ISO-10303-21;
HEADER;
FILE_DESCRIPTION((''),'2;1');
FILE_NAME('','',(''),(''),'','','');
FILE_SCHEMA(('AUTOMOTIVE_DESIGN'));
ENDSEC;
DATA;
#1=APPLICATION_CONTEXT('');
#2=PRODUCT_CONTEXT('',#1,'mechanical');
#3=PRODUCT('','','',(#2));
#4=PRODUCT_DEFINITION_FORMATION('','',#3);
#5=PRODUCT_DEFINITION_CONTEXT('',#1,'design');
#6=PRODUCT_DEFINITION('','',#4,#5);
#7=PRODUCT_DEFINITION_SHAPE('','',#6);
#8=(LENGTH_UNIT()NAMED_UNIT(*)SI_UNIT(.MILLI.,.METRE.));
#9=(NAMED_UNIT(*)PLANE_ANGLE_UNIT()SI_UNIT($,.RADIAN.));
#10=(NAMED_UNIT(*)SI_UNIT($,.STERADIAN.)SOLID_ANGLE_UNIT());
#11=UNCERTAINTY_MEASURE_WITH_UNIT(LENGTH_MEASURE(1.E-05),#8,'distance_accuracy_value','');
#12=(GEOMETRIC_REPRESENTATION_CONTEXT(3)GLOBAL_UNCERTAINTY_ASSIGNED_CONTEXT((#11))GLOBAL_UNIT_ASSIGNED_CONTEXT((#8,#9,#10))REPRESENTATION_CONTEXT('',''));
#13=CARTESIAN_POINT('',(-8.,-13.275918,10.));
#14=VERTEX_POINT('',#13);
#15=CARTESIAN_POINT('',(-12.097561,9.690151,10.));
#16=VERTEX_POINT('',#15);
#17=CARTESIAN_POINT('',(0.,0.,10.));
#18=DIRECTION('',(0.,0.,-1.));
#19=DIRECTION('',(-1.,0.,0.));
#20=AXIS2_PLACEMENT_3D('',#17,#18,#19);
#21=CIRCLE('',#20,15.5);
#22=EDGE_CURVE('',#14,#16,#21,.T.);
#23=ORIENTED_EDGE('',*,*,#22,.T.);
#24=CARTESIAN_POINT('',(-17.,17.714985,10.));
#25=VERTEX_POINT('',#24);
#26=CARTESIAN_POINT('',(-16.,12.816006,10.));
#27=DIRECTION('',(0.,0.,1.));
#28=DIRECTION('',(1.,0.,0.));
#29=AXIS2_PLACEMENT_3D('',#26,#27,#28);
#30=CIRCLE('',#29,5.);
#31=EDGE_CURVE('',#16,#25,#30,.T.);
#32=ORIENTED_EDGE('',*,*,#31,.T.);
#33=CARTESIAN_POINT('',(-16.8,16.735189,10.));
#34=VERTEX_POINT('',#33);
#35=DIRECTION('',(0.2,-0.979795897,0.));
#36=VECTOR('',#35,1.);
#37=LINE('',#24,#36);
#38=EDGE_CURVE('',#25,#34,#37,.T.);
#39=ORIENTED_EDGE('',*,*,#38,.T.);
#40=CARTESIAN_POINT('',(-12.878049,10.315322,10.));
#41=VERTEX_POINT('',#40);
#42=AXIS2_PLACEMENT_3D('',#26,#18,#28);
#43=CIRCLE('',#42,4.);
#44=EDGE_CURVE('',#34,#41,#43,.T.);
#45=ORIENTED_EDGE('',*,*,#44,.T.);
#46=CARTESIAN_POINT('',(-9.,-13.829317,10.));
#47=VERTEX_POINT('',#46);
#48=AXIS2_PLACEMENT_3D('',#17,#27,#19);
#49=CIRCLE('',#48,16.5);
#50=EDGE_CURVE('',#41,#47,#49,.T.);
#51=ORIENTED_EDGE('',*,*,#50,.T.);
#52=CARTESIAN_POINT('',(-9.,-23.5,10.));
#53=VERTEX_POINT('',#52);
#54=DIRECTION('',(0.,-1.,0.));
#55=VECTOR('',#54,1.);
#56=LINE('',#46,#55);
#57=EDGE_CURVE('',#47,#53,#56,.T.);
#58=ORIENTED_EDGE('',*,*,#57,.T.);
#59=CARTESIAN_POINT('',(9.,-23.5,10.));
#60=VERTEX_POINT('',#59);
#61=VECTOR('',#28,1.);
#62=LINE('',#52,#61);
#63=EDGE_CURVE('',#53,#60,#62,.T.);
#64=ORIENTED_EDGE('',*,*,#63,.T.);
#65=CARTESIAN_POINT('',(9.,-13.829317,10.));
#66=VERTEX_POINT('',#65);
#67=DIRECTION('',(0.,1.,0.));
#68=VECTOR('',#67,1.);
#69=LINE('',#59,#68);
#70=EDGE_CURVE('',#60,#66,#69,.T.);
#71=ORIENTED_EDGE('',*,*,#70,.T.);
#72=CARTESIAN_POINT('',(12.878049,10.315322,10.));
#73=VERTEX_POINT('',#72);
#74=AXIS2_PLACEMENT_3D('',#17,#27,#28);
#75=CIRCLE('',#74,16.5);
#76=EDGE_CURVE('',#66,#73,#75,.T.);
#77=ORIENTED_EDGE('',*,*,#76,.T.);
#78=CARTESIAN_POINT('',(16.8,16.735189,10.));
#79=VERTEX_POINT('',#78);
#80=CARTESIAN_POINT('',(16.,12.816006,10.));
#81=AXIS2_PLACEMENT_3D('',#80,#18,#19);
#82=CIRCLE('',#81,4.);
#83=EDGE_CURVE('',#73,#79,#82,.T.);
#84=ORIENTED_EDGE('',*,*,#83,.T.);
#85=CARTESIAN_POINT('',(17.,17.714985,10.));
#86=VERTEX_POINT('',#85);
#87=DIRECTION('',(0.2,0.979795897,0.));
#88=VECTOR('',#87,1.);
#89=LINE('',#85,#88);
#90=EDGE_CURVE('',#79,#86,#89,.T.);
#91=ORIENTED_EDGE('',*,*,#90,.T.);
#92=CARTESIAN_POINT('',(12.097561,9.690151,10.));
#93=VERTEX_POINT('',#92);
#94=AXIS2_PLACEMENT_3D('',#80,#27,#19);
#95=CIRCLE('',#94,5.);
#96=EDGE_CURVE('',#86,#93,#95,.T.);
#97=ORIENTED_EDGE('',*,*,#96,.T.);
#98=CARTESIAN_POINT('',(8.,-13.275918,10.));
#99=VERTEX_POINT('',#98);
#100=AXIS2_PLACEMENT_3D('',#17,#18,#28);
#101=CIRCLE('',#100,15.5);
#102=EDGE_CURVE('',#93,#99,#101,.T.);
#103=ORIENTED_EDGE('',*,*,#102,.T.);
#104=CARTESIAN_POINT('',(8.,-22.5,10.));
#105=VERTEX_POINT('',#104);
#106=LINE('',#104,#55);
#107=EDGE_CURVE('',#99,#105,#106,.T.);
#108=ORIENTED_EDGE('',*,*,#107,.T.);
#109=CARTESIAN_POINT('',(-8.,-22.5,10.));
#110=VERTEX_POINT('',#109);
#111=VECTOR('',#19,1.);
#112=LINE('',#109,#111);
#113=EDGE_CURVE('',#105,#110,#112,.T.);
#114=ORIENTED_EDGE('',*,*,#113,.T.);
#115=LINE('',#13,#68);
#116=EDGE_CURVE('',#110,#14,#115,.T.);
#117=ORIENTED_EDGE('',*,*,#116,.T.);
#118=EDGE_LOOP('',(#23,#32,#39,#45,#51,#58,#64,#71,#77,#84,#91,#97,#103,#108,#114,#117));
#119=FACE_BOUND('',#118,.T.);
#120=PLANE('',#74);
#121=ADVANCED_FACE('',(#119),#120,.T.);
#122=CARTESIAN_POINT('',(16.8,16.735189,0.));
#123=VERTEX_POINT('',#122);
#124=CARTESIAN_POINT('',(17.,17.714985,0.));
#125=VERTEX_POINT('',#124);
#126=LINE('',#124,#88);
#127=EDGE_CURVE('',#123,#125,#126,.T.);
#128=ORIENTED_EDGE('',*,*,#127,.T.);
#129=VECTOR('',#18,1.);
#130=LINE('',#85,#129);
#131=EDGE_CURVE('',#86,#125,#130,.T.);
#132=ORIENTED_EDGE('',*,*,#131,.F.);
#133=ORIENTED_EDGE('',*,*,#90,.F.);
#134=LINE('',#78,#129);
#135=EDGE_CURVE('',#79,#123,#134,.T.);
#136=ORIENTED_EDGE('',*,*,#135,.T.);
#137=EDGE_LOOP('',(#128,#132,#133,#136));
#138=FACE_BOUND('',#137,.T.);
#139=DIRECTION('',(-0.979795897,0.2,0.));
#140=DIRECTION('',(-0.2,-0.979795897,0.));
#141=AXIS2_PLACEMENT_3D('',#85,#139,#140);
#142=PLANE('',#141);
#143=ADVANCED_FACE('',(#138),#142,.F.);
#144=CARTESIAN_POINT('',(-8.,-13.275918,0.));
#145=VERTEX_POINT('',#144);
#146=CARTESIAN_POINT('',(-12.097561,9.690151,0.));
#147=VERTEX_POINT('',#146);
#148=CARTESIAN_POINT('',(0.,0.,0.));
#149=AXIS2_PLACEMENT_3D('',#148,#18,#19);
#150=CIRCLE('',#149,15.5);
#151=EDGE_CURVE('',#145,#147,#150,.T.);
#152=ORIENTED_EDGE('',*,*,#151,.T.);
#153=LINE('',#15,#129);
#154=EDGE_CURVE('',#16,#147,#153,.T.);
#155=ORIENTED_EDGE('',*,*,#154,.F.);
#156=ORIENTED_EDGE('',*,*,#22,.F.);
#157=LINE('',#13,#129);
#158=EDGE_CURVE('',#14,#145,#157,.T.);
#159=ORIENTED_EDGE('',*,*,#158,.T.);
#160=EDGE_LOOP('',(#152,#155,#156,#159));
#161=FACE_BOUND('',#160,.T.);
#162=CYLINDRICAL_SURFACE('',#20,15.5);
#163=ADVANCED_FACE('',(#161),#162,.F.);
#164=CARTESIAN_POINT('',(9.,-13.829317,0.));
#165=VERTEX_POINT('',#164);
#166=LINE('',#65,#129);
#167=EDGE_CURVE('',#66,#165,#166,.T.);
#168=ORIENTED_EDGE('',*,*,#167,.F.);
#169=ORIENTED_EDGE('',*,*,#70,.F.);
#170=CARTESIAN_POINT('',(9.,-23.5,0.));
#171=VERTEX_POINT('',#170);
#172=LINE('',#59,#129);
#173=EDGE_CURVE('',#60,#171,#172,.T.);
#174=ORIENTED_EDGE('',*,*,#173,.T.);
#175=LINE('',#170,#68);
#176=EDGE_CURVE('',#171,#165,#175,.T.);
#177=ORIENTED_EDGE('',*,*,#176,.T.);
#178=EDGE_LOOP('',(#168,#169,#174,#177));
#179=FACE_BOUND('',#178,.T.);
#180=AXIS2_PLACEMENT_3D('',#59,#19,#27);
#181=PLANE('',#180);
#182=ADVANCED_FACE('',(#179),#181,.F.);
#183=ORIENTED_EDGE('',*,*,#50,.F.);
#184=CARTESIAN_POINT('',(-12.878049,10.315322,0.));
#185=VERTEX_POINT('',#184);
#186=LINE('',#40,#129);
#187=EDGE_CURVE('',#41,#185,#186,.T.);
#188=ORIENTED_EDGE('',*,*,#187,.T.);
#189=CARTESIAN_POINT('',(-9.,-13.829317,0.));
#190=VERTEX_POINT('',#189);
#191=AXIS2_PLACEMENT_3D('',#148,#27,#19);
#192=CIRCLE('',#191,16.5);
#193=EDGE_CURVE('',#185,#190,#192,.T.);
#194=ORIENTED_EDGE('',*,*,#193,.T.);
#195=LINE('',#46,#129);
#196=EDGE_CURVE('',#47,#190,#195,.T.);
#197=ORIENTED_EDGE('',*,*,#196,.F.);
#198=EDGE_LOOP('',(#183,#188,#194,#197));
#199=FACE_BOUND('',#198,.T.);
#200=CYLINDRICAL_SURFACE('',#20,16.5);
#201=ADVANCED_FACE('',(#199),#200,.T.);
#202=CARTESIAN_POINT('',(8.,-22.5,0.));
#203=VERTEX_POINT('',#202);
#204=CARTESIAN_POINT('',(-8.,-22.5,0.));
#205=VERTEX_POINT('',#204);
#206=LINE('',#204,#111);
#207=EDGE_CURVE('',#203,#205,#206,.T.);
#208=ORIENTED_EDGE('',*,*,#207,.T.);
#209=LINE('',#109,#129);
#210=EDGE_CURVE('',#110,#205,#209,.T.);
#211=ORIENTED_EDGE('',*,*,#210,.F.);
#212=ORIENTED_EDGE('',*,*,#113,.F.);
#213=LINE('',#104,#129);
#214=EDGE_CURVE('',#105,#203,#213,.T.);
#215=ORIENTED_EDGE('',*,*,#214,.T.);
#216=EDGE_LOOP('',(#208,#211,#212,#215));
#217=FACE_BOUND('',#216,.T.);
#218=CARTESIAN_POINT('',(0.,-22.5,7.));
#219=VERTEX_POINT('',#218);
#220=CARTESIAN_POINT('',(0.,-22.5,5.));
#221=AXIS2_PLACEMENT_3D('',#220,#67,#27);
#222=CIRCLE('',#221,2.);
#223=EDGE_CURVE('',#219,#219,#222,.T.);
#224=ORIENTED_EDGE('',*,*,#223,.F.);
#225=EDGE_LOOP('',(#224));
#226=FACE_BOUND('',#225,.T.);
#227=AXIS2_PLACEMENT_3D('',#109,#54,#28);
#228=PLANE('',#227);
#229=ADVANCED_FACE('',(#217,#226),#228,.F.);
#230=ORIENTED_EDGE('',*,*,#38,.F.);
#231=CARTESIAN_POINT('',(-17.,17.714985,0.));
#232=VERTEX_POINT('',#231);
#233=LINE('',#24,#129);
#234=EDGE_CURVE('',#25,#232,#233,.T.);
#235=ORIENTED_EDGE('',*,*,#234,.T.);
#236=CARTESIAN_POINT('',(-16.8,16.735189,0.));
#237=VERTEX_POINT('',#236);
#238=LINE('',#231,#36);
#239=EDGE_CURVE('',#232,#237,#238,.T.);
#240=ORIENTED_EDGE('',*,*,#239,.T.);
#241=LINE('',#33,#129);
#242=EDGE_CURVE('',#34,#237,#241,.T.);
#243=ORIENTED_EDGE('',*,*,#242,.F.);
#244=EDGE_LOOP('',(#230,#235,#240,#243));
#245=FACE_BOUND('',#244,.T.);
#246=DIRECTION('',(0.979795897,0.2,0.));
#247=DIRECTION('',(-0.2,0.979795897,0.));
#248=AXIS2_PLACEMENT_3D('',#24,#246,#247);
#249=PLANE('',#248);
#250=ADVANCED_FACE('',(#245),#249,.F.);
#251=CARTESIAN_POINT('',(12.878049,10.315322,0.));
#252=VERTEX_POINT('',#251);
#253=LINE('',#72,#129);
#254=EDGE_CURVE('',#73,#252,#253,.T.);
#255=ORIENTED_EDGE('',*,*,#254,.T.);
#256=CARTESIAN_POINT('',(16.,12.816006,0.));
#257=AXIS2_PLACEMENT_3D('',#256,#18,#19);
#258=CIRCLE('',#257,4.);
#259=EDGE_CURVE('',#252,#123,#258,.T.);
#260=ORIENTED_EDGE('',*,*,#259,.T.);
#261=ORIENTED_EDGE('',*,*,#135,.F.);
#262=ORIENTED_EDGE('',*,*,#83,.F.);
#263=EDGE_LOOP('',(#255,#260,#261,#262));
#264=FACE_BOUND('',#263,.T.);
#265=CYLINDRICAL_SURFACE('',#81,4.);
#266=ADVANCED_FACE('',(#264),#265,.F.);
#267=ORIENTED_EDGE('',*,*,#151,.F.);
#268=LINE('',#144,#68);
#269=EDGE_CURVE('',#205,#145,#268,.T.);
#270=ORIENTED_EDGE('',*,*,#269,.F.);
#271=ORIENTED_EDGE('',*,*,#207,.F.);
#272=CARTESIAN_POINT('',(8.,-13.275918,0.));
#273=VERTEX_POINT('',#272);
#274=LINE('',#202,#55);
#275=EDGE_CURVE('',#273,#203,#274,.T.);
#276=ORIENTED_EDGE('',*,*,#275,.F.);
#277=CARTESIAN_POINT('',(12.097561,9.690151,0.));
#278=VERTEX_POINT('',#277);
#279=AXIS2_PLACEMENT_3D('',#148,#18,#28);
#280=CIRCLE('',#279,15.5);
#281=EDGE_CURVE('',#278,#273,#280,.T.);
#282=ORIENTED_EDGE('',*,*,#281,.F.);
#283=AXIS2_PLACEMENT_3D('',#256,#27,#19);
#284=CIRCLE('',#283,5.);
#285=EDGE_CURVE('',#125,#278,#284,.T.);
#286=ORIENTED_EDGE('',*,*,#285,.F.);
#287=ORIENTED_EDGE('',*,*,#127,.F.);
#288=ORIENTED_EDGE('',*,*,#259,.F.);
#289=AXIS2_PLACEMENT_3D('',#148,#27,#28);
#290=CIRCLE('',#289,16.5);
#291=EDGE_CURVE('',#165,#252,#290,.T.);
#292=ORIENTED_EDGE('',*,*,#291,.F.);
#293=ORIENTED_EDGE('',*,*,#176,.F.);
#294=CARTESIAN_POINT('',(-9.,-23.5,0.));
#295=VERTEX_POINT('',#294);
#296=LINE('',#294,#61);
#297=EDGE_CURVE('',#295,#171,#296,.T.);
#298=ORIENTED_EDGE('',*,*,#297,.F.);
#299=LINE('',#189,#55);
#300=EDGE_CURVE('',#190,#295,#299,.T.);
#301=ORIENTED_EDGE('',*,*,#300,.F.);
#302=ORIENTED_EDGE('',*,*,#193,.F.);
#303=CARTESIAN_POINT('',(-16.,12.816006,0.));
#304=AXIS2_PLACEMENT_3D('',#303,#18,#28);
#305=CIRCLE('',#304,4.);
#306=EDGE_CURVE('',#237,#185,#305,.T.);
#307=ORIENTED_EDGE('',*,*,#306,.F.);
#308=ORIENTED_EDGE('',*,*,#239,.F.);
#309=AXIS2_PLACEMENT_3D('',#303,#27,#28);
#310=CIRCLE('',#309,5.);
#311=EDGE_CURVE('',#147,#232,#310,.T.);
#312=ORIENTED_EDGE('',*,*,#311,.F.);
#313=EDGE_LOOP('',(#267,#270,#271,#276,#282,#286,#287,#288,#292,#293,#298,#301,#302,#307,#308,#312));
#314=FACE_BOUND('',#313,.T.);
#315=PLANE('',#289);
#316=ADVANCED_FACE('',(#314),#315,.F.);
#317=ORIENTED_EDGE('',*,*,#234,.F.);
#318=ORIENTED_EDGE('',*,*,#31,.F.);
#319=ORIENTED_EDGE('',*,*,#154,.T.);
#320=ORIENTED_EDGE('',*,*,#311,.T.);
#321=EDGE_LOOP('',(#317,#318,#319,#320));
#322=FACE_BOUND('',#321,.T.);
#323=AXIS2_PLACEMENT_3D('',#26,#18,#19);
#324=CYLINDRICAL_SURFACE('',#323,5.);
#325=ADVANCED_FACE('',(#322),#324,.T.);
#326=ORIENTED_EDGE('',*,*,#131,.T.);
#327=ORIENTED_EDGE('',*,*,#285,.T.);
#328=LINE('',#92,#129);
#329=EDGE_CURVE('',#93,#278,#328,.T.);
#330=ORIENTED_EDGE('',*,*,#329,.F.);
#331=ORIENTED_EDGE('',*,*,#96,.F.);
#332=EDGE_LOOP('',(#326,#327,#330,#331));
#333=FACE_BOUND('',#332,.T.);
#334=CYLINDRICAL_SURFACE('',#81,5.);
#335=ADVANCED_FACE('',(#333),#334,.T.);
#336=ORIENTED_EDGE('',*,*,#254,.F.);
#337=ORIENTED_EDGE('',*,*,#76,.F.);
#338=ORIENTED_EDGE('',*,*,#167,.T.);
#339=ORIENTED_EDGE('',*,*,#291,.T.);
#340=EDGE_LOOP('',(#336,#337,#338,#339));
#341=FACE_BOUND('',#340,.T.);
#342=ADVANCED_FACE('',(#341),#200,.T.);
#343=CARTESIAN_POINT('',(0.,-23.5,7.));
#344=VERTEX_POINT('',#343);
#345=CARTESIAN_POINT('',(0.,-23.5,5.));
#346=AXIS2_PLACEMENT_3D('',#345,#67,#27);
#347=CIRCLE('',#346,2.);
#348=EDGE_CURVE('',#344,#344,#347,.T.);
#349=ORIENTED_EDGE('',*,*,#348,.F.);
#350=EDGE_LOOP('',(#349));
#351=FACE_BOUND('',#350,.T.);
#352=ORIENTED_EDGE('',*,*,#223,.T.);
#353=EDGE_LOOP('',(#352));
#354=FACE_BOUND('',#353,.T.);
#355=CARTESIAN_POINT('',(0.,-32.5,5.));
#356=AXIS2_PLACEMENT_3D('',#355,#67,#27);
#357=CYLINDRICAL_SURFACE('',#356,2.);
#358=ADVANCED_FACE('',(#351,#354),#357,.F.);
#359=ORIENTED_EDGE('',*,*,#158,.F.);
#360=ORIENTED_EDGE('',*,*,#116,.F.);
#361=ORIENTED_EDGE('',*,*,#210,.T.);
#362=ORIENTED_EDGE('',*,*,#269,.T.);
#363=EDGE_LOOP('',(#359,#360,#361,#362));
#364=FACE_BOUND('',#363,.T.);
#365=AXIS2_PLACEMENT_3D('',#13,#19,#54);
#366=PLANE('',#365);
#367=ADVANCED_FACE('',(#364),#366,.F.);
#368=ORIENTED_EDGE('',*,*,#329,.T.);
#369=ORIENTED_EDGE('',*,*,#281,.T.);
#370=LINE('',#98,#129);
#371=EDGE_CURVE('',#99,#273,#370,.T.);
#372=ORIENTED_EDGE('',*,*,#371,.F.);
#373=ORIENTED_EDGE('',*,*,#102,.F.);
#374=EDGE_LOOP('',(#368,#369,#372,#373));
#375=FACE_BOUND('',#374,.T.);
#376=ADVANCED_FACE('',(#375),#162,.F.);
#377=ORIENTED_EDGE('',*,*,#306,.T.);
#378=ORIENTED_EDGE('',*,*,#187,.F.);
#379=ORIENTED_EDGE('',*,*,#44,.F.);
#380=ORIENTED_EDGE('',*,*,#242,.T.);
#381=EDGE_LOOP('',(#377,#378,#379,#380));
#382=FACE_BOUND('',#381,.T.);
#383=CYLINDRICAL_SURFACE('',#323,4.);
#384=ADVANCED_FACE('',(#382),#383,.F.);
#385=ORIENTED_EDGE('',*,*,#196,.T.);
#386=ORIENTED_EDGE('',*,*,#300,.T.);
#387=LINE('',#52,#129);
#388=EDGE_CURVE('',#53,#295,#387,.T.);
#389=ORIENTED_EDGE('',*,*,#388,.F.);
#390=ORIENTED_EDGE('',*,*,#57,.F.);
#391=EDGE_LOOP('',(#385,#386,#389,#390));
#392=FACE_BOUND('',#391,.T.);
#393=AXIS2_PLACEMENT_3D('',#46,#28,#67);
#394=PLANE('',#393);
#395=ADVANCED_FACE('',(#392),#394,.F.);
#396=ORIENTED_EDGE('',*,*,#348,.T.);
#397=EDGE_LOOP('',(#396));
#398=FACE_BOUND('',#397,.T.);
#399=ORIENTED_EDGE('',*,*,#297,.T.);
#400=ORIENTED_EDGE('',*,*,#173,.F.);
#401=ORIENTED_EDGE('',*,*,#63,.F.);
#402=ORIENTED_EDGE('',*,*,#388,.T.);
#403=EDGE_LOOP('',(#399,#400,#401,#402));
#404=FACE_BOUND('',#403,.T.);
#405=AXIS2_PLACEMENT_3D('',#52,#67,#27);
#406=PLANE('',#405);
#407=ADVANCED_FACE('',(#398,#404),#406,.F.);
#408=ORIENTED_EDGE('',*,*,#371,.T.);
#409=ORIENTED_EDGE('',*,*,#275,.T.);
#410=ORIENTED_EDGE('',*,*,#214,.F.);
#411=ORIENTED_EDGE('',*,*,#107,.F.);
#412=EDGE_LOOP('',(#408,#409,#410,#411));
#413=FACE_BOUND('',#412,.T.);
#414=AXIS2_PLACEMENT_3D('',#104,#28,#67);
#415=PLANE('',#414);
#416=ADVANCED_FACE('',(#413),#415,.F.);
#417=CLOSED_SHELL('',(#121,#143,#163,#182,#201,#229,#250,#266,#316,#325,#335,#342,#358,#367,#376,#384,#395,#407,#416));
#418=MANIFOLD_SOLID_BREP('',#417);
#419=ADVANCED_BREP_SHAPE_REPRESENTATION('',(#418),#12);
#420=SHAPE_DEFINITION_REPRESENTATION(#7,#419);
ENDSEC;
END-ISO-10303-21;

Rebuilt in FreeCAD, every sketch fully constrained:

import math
import FreeCAD as App
import Part
import Sketcher

V = App.Vector

doc = App.newDocument("Part")
body = doc.addObject("PartDesign::Body", "Body")

sketch1 = doc.addObject("Sketcher::SketchObject", "Sketch")
body.addObject(sketch1)
sketch1.AttachmentSupport = (doc.XY_Plane, [""])
sketch1.MapMode = "FlatFace"
sketch1.addGeometry(Part.LineSegment(V(8, -13.3, 0), V(8, -22.5, 0)), False)
sketch1.addGeometry(Part.LineSegment(V(8, -22.5, 0), V(-8, -22.5, 0)), False)
sketch1.addGeometry(Part.LineSegment(V(-8, -22.5, 0), V(-8, -13.3, 0)), False)
sketch1.addGeometry(Part.ArcOfCircle(Part.Circle(V(0, 0, 0), V(0, 0, 1), 15.5), math.radians(141), math.radians(239)), False)
sketch1.addGeometry(Part.ArcOfCircle(Part.Circle(V(-16, 12.8, 0), V(0, 0, 1), 5), math.radians(-39), math.radians(102)), False)
sketch1.addGeometry(Part.LineSegment(V(-17, 17.7, 0), V(-16.8, 16.7, 0)), False)
sketch1.addGeometry(Part.ArcOfCircle(Part.Circle(V(-16, 12.8, 0), V(0, 0, 1), 4), math.radians(-39), math.radians(102)), False)
sketch1.addGeometry(Part.ArcOfCircle(Part.Circle(V(0, 0, 0), V(0, 0, 1), 16.5), math.radians(141), math.radians(237)), False)
sketch1.addGeometry(Part.LineSegment(V(-9, -13.8, 0), V(-9, -23.5, 0)), False)
sketch1.addGeometry(Part.LineSegment(V(-9, -23.5, 0), V(9, -23.5, 0)), False)
sketch1.addGeometry(Part.LineSegment(V(9, -23.5, 0), V(9, -13.8, 0)), False)
sketch1.addGeometry(Part.ArcOfCircle(Part.Circle(V(0, 0, 0), V(0, 0, 1), 16.5), math.radians(-57), math.radians(39)), False)
sketch1.addGeometry(Part.ArcOfCircle(Part.Circle(V(16, 12.8, 0), V(0, 0, 1), 4), math.radians(78), math.radians(219)), False)
sketch1.addGeometry(Part.LineSegment(V(16.8, 16.7, 0), V(17, 17.7, 0)), False)
sketch1.addGeometry(Part.ArcOfCircle(Part.Circle(V(16, 12.8, 0), V(0, 0, 1), 5), math.radians(78), math.radians(219)), False)
sketch1.addGeometry(Part.ArcOfCircle(Part.Circle(V(0, 0, 0), V(0, 0, 1), 15.5), math.radians(-59), math.radians(39)), False)
sketch1.addConstraint(Sketcher.Constraint("Coincident", 0, 2, 1, 1))
sketch1.addConstraint(Sketcher.Constraint("Coincident", 1, 2, 2, 1))
sketch1.addConstraint(Sketcher.Constraint("Coincident", 2, 2, 3, 2))
sketch1.addConstraint(Sketcher.Constraint("Tangent", 3, 1, 4, 1))
sketch1.addConstraint(Sketcher.Constraint("Coincident", 4, 2, 5, 1))
sketch1.addConstraint(Sketcher.Constraint("Coincident", 5, 2, 6, 2))
sketch1.addConstraint(Sketcher.Constraint("Tangent", 6, 1, 7, 1))
sketch1.addConstraint(Sketcher.Constraint("Coincident", 7, 2, 8, 1))
sketch1.addConstraint(Sketcher.Constraint("Coincident", 8, 2, 9, 1))
sketch1.addConstraint(Sketcher.Constraint("Coincident", 9, 2, 10, 1))
sketch1.addConstraint(Sketcher.Constraint("Coincident", 10, 2, 11, 1))
sketch1.addConstraint(Sketcher.Constraint("Tangent", 11, 2, 12, 2))
sketch1.addConstraint(Sketcher.Constraint("Coincident", 12, 1, 13, 1))
sketch1.addConstraint(Sketcher.Constraint("Coincident", 13, 2, 14, 1))
sketch1.addConstraint(Sketcher.Constraint("Tangent", 14, 2, 15, 2))
sketch1.addConstraint(Sketcher.Constraint("Coincident", 15, 1, 0, 1))
sketch1.addConstraint(Sketcher.Constraint("Vertical", 0))
sketch1.addConstraint(Sketcher.Constraint("Horizontal", 1))
sketch1.addConstraint(Sketcher.Constraint("Vertical", 2))
sketch1.addConstraint(Sketcher.Constraint("Vertical", 8))
sketch1.addConstraint(Sketcher.Constraint("Horizontal", 9))
sketch1.addConstraint(Sketcher.Constraint("Vertical", 10))
sketch1.addConstraint(Sketcher.Constraint("Coincident", 3, 3, -1, 1))
sketch1.addConstraint(Sketcher.Constraint("Coincident", 7, 3, -1, 1))
sketch1.addConstraint(Sketcher.Constraint("Coincident", 11, 3, -1, 1))
sketch1.addConstraint(Sketcher.Constraint("Coincident", 15, 3, -1, 1))
sketch1.addConstraint(Sketcher.Constraint("Coincident", 6, 3, 4, 3))
sketch1.addConstraint(Sketcher.Constraint("Coincident", 14, 3, 12, 3))
sketch1.addConstraint(Sketcher.Constraint("Equal", 7, 11))
sketch1.addConstraint(Sketcher.Constraint("Equal", 6, 12))
sketch1.addConstraint(Sketcher.Constraint("Equal", 4, 14))
sketch1.addConstraint(Sketcher.Constraint("Symmetric", 5, 2, 12, 1, -2))
sketch1.addConstraint(Sketcher.Constraint("Horizontal", 7, 2, 10, 2))
sketch1.addConstraint(Sketcher.Constraint("Horizontal", 4, 2, 13, 2))
sketch1.addConstraint(Sketcher.Constraint("Horizontal", 2, 2, 15, 1))
sketch1.addConstraint(Sketcher.Constraint("Radius", 4, 5.0))
sketch1.addConstraint(Sketcher.Constraint("Radius", 6, 4.0))
sketch1.addConstraint(Sketcher.Constraint("Radius", 3, 15.5))
sketch1.addConstraint(Sketcher.Constraint("DistanceX", 1, 2, 1, 1, 16.0))
sketch1.addConstraint(Sketcher.Constraint("DistanceX", 9, 1, 9, 2, 18.0))
sketch1.addConstraint(Sketcher.Constraint("DistanceX", 4, 3, -1, 1, 16.0))
sketch1.addConstraint(Sketcher.Constraint("DistanceX", 4, 2, -1, 1, 17.0))
sketch1.addConstraint(Sketcher.Constraint("DistanceY", 8, 2, 1, 2, 1.0))
sketch1.addConstraint(Sketcher.Constraint("DistanceY", 0, 2, -1, 1, 22.5))
sketch1.addConstraint(Sketcher.Constraint("DistanceX", 5, 2, -1, 1, 16.8))
pad1 = doc.addObject("PartDesign::Pad", "Pad")
body.addObject(pad1)
pad1.Profile = sketch1
pad1.Length = 10

sketch2 = doc.addObject("Sketcher::SketchObject", "Sketch001")
body.addObject(sketch2)
sketch2.AttachmentSupport = (doc.XZ_Plane, [""])
sketch2.MapMode = "FlatFace"
sketch2.AttachmentOffset = App.Placement(V(0, 0, 22.5), App.Rotation())
sketch2.addGeometry(Part.Circle(V(0, 5, 0), V(0, 0, 1), 2), False)
sketch2.addConstraint(Sketcher.Constraint("PointOnObject", 0, 3, -2))
sketch2.addConstraint(Sketcher.Constraint("Diameter", 0, 4.0))
sketch2.addConstraint(Sketcher.Constraint("DistanceY", -1, 1, 0, 3, 5.0))
pocket1 = doc.addObject("PartDesign::Pocket", "Pocket")
body.addObject(pocket1)
pocket1.Profile = sketch2
pocket1.Length = 10
pocket1.Reversed = True

doc.recompute()
